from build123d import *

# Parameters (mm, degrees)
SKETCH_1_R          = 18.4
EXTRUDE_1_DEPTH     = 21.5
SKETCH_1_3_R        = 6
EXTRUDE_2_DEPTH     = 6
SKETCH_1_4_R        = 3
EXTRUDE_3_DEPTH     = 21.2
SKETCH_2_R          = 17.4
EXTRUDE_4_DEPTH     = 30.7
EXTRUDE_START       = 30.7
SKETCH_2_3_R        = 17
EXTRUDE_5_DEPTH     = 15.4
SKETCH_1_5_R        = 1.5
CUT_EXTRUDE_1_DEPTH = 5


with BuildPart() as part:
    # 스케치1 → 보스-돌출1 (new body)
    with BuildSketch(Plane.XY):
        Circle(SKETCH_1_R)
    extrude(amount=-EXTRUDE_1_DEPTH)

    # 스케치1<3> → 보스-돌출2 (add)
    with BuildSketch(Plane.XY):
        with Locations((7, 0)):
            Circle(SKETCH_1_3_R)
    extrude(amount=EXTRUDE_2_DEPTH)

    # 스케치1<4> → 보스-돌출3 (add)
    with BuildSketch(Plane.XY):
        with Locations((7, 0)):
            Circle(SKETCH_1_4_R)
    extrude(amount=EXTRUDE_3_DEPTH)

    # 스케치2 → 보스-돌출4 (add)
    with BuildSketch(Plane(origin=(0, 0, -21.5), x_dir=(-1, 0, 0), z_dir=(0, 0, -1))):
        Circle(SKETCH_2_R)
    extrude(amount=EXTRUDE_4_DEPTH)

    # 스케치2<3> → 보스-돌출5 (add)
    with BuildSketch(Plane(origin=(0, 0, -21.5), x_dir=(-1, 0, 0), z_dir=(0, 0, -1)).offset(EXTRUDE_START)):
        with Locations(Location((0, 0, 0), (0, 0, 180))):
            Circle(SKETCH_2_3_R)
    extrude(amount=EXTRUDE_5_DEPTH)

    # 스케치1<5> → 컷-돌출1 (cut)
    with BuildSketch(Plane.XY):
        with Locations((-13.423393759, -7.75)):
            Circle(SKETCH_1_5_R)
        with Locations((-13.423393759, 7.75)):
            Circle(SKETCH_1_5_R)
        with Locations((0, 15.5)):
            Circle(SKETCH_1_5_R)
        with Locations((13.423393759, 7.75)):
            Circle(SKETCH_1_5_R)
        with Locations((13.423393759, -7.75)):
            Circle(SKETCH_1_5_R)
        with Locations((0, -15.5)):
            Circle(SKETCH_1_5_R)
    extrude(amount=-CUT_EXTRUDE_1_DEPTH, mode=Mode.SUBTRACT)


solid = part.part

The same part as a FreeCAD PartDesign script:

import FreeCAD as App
import Part
import Sketcher

V = App.Vector

doc = App.newDocument("Part")
body = doc.addObject("PartDesign::Body", "Body")

# Sketch on XY plane
sketch1 = doc.addObject("Sketcher::SketchObject", "Sketch")
body.addObject(sketch1)
sketch1.AttachmentSupport = (doc.XY_Plane, [""])
sketch1.MapMode = "FlatFace"
sketch1.addGeometry(Part.Circle(V(0, 0, 0), V(0, 0, 1), 18), False)
sketch1.addConstraint([
    Sketcher.Constraint("Coincident", 0, 3, -1, 1),
    Sketcher.Constraint("Diameter", 0, 36.8),
])
pad1 = doc.addObject("PartDesign::Pad", "Pad")
body.addObject(pad1)
pad1.Profile = sketch1
pad1.Length = 21.5
pad1.Reversed = True

# Sketch on XY plane
sketch2 = doc.addObject("Sketcher::SketchObject", "Sketch001")
body.addObject(sketch2)
sketch2.AttachmentSupport = (doc.XY_Plane, [""])
sketch2.MapMode = "FlatFace"
sketch2.addGeometry(Part.Circle(V(7, 0, 0), V(0, 0, 1), 6), False)
sketch2.addConstraint([
    Sketcher.Constraint("PointOnObject", 0, 3, -1),
    Sketcher.Constraint("Diameter", 0, 12.0),
    Sketcher.Constraint("DistanceX", -1, 1, 0, 3, 7.0),
])
pad2 = doc.addObject("PartDesign::Pad", "Pad001")
body.addObject(pad2)
pad2.Profile = sketch2
pad2.Length = 6

# Sketch on XY plane
sketch3 = doc.addObject("Sketcher::SketchObject", "Sketch002")
body.addObject(sketch3)
sketch3.AttachmentSupport = (doc.XY_Plane, [""])
sketch3.MapMode = "FlatFace"
sketch3.addGeometry(Part.Circle(V(7, 0, 0), V(0, 0, 1), 3), False)
sketch3.addConstraint([
    Sketcher.Constraint("PointOnObject", 0, 3, -1),
    Sketcher.Constraint("Diameter", 0, 6.0),
    Sketcher.Constraint("DistanceX", -1, 1, 0, 3, 7.0),
])
pad3 = doc.addObject("PartDesign::Pad", "Pad002")
body.addObject(pad3)
pad3.Profile = sketch3
pad3.Length = 21.2

# Sketch on XY plane
sketch4 = doc.addObject("Sketcher::SketchObject", "Sketch003")
body.addObject(sketch4)
sketch4.AttachmentSupport = (doc.XY_Plane, [""])
sketch4.MapMode = "FlatFace"
sketch4.AttachmentOffset = App.Placement(V(0, 0, -21.5), App.Rotation())
sketch4.addGeometry(Part.Circle(V(0, 0, 0), V(0, 0, 1), 17), False)
sketch4.addConstraint([
    Sketcher.Constraint("Coincident", 0, 3, -1, 1),
    Sketcher.Constraint("Diameter", 0, 34.8),
])
pad4 = doc.addObject("PartDesign::Pad", "Pad003")
body.addObject(pad4)
pad4.Profile = sketch4
pad4.Length = 30.7
pad4.Reversed = True

# Sketch on XY plane
sketch5 = doc.addObject("Sketcher::SketchObject", "Sketch004")
body.addObject(sketch5)
sketch5.AttachmentSupport = (doc.XY_Plane, [""])
sketch5.MapMode = "FlatFace"
sketch5.AttachmentOffset = App.Placement(V(0, 0, -52.2), App.Rotation())
sketch5.addGeometry(Part.Circle(V(0, 0, 0), V(0, 0, 1), 17), False)
sketch5.addConstraint([
    Sketcher.Constraint("Coincident", 0, 3, -1, 1),
    Sketcher.Constraint("Diameter", 0, 34.0),
])
pad5 = doc.addObject("PartDesign::Pad", "Pad004")
body.addObject(pad5)
pad5.Profile = sketch5
pad5.Length = 15.4
pad5.Reversed = True

# Sketch on XY plane
sketch6 = doc.addObject("Sketcher::SketchObject", "Sketch005")
body.addObject(sketch6)
sketch6.AttachmentSupport = (doc.XY_Plane, [""])
sketch6.MapMode = "FlatFace"
sketch6.addGeometry([
    Part.Circle(V(-13.4, -7.8, 0), V(0, 0, 1), 1.5),  # 0
    Part.Circle(V(-13.4, 7.8, 0), V(0, 0, 1), 1.5),  # 1
    Part.Circle(V(0, 15.5, 0), V(0, 0, 1), 1.5),  # 2
    Part.Circle(V(13.4, 7.8, 0), V(0, 0, 1), 1.5),  # 3
    Part.Circle(V(13.4, -7.8, 0), V(0, 0, 1), 1.5),  # 4
    Part.Circle(V(0, -15.5, 0), V(0, 0, 1), 1.5),  # 5
], False)
sketch6.addConstraint([
    Sketcher.Constraint("Equal", 0, 1),
    Sketcher.Constraint("Equal", 1, 2),
    Sketcher.Constraint("Equal", 2, 3),
    Sketcher.Constraint("Equal", 3, 4),
    Sketcher.Constraint("Equal", 4, 5),
    Sketcher.Constraint("Symmetric", 0, 3, 3, 3, -1, 1),
    Sketcher.Constraint("Symmetric", 1, 3, 4, 3, -1, 1),
    Sketcher.Constraint("Symmetric", 2, 3, 5, 3, -1, 1),
    Sketcher.Constraint("Symmetric", 1, 3, 3, 3, -2),
    Sketcher.Constraint("PointOnObject", 2, 3, -2),
    Sketcher.Constraint("Diameter", 0, 3.0),
    Sketcher.Constraint("DistanceY", 5, 3, 2, 3, 31.0),
    Sketcher.Constraint("DistanceY", 0, 3, 1, 3, 15.5),
    Sketcher.Constraint("DistanceX", 0, 3, -1, 1, 13.423394),
])
pocket1 = doc.addObject("PartDesign::Pocket", "Pocket")
body.addObject(pocket1)
pocket1.Profile = sketch6
pocket1.Length = 5

doc.recompute()
